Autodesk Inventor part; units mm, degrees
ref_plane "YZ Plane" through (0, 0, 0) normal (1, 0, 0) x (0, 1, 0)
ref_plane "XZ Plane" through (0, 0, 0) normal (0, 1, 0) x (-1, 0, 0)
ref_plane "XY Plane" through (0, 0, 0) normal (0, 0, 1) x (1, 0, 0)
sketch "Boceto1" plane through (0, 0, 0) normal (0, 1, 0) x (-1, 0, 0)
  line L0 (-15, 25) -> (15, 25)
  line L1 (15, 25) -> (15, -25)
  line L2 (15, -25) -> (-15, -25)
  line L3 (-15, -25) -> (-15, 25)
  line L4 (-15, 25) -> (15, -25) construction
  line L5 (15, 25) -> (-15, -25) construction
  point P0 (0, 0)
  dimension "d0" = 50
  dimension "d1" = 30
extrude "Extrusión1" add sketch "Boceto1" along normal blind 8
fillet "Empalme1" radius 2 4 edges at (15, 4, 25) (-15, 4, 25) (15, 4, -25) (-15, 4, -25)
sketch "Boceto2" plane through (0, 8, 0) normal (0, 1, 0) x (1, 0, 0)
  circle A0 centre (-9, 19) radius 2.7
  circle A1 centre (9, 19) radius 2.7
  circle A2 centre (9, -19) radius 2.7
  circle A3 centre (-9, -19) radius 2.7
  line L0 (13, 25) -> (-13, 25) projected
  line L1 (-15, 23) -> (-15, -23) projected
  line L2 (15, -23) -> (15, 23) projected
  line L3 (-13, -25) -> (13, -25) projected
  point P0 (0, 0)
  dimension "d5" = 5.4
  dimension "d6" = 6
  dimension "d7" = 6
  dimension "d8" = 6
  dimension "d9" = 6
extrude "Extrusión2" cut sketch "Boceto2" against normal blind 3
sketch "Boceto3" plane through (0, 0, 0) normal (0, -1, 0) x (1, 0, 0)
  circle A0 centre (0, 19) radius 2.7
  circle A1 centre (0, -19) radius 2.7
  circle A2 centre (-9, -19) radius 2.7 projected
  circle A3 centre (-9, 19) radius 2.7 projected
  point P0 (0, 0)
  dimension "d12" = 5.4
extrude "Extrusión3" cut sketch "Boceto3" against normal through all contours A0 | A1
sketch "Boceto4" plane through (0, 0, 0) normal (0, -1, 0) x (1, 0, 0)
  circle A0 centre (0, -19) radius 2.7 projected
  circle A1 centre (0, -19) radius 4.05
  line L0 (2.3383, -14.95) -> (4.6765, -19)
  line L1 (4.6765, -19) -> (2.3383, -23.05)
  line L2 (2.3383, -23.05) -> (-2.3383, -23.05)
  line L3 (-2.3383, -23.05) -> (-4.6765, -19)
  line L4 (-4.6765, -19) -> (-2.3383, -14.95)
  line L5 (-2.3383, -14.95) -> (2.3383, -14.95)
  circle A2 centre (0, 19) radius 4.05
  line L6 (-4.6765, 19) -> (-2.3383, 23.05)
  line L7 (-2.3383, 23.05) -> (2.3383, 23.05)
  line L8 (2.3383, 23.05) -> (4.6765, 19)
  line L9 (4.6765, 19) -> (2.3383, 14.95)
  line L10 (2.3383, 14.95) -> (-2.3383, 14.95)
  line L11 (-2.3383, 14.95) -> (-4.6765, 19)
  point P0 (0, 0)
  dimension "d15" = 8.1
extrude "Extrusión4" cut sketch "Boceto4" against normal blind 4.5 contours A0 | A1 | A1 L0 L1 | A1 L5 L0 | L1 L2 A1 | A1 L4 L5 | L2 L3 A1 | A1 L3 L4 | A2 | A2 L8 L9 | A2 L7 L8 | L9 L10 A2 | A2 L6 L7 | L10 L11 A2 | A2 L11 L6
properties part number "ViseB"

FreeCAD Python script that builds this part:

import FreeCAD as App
import Part
import Sketcher
Q = App.Units.Quantity


def edges_at(feature, points):
    """Names of the edges that pass closest to the given points."""
    edges = feature.Shape.Edges
    near = lambda p: min(range(len(edges)), key=lambda i: edges[i].distToShape(Part.Vertex(*p))[0])
    return sorted({f"Edge{near(p) + 1}" for p in points})

doc = App.newDocument("Part")
body = doc.addObject("PartDesign::Body", "Body")

sketch1 = body.newObject("Sketcher::SketchObject", "Sketch")
sketch1.AttachmentSupport = (doc.getObject("XZ_Plane"), [""])
sketch1.MapMode = "FlatFace"
sketch1.addGeometry(Part.LineSegment(App.Vector(-15, 25, 0), App.Vector(15, 25, 0)), False)
sketch1.addGeometry(Part.LineSegment(App.Vector(15, 25, 0), App.Vector(15, -25, 0)), False)
sketch1.addGeometry(Part.LineSegment(App.Vector(15, -25, 0), App.Vector(-15, -25, 0)), False)
sketch1.addGeometry(Part.LineSegment(App.Vector(-15, -25, 0), App.Vector(-15, 25, 0)), False)
sketch1.addConstraint(Sketcher.Constraint("Coincident", 0, 2, 1, 1))
sketch1.addConstraint(Sketcher.Constraint("Coincident", 1, 2, 2, 1))
sketch1.addConstraint(Sketcher.Constraint("Coincident", 2, 2, 3, 1))
sketch1.addConstraint(Sketcher.Constraint("Coincident", 3, 2, 0, 1))
sketch1.addConstraint(Sketcher.Constraint("Horizontal", 0))
sketch1.addConstraint(Sketcher.Constraint("Vertical", 1))
sketch1.addConstraint(Sketcher.Constraint("Horizontal", 2))
sketch1.addConstraint(Sketcher.Constraint("Vertical", 3))
sketch1.addConstraint(Sketcher.Constraint("Symmetric", 0, 2, 2, 2, -1, 1))
sketch1.addConstraint(Sketcher.Constraint("DistanceX", 0, 1, 0, 2, 30.0))
sketch1.addConstraint(Sketcher.Constraint("DistanceY", 1, 2, 1, 1, 50.0))
pad1 = body.newObject("PartDesign::Pad", "Pad")
pad1.Profile = sketch1
pad1.Length = 8
pad1.Reversed = True
doc.recompute()

fillet = body.newObject("PartDesign::Fillet", "Fillet")
fillet.Base = (pad1, edges_at(pad1, [
    (15, 4, 25),
    (-15, 4, 25),
    (15, 4, -25),
    (-15, 4, -25),
]))
fillet.Radius = 2

sketch2 = body.newObject("Sketcher::SketchObject", "Sketch001")
sketch2.AttachmentSupport = (doc.getObject("XZ_Plane"), [""])
sketch2.MapMode = "FlatFace"
sketch2.AttachmentOffset = App.Placement(App.Vector(0, 0, -8), App.Rotation())
sketch2.addGeometry(Part.Circle(App.Vector(-9, -19, 0), App.Vector(0, 0, 1), 2.7), False)
sketch2.addGeometry(Part.Circle(App.Vector(9, -19, 0), App.Vector(0, 0, 1), 2.7), False)
sketch2.addGeometry(Part.Circle(App.Vector(9, 19, 0), App.Vector(0, 0, 1), 2.7), False)
sketch2.addGeometry(Part.Circle(App.Vector(-9, 19, 0), App.Vector(0, 0, 1), 2.7), False)
sketch2.addConstraint(Sketcher.Constraint("Equal", 0, 1))
sketch2.addConstraint(Sketcher.Constraint("Equal", 1, 2))
sketch2.addConstraint(Sketcher.Constraint("Equal", 2, 3))
sketch2.addConstraint(Sketcher.Constraint("Symmetric", 0, 3, 2, 3, -1, 1))
sketch2.addConstraint(Sketcher.Constraint("Symmetric", 1, 3, 3, 3, -1, 1))
sketch2.addConstraint(Sketcher.Constraint("Symmetric", 0, 3, 1, 3, -2))
sketch2.addConstraint(Sketcher.Constraint("Diameter", 0, 5.4))
sketch2.addConstraint(Sketcher.Constraint("DistanceX", 0, 3, -1, 1, 9.0))
sketch2.addConstraint(Sketcher.Constraint("DistanceY", 0, 3, -1, 1, 19.0))
pocket1 = body.newObject("PartDesign::Pocket", "Pocket")
pocket1.Profile = sketch2
pocket1.Length = 3
pocket1.Reversed = True

sketch3 = body.newObject("Sketcher::SketchObject", "Sketch002")
sketch3.AttachmentSupport = (doc.getObject("XZ_Plane"), [""])
sketch3.MapMode = "FlatFace"
sketch3.addGeometry(Part.Circle(App.Vector(0, 19, 0), App.Vector(0, 0, 1), 2.7), False)
sketch3.addGeometry(Part.Circle(App.Vector(0, -19, 0), App.Vector(0, 0, 1), 2.7), False)
sketch3.addConstraint(Sketcher.Constraint("Equal", 0, 1))
sketch3.addConstraint(Sketcher.Constraint("Symmetric", 0, 3, 1, 3, -1, 1))
sketch3.addConstraint(Sketcher.Constraint("PointOnObject", 0, 3, -2))
sketch3.addConstraint(Sketcher.Constraint("Diameter", 0, 5.4))
sketch3.addConstraint(Sketcher.Constraint("DistanceY", -1, 1, 0, 3, 19.0))
pocket2 = body.newObject("PartDesign::Pocket", "Pocket001")
pocket2.Profile = sketch3
pocket2.Type = "ThroughAll"

sketch4 = body.newObject("Sketcher::SketchObject", "Sketch003")
sketch4.AttachmentSupport = (doc.getObject("XZ_Plane"), [""])
sketch4.MapMode = "FlatFace"
sketch4.addGeometry(Part.LineSegment(App.Vector(4.7, -19, 0), App.Vector(2.3, -14.9, 0)), False)
sketch4.addGeometry(Part.LineSegment(App.Vector(2.3, -14.9, 0), App.Vector(-2.3, -14.9, 0)), False)
sketch4.addGeometry(Part.LineSegment(App.Vector(-2.3, -14.9, 0), App.Vector(-4.7, -19, 0)), False)
sketch4.addGeometry(Part.LineSegment(App.Vector(-4.7, -19, 0), App.Vector(-2.3, -23.1, 0)), False)
sketch4.addGeometry(Part.LineSegment(App.Vector(-2.3, -23.1, 0), App.Vector(2.3, -23.1, 0)), False)
sketch4.addGeometry(Part.LineSegment(App.Vector(2.3, -23.1, 0), App.Vector(4.7, -19, 0)), False)
sketch4.addGeometry(Part.LineSegment(App.Vector(4.7, 19, 0), App.Vector(2.3, 23.1, 0)), False)
sketch4.addGeometry(Part.LineSegment(App.Vector(2.3, 23.1, 0), App.Vector(-2.3, 23.1, 0)), False)
sketch4.addGeometry(Part.LineSegment(App.Vector(-2.3, 23.1, 0), App.Vector(-4.7, 19, 0)), False)
sketch4.addGeometry(Part.LineSegment(App.Vector(-4.7, 19, 0), App.Vector(-2.3, 14.9, 0)), False)
sketch4.addGeometry(Part.LineSegment(App.Vector(-2.3, 14.9, 0), App.Vector(2.3, 14.9, 0)), False)
sketch4.addGeometry(Part.LineSegment(App.Vector(2.3, 14.9, 0), App.Vector(4.7, 19, 0)), False)
sketch4.addConstraint(Sketcher.Constraint("Coincident", 0, 2, 1, 1))
sketch4.addConstraint(Sketcher.Constraint("Coincident", 1, 2, 2, 1))
sketch4.addConstraint(Sketcher.Constraint("Coincident", 2, 2, 3, 1))
sketch4.addConstraint(Sketcher.Constraint("Coincident", 3, 2, 4, 1))
sketch4.addConstraint(Sketcher.Constraint("Coincident", 4, 2, 5, 1))
sketch4.addConstraint(Sketcher.Constraint("Coincident", 5, 2, 0, 1))
sketch4.addConstraint(Sketcher.Constraint("Coincident", 6, 2, 7, 1))
sketch4.addConstraint(Sketcher.Constraint("Coincident", 7, 2, 8, 1))
sketch4.addConstraint(Sketcher.Constraint("Coincident", 8, 2, 9, 1))
sketch4.addConstraint(Sketcher.Constraint("Coincident", 9, 2, 10, 1))
sketch4.addConstraint(Sketcher.Constraint("Coincident", 10, 2, 11, 1))
sketch4.addConstraint(Sketcher.Constraint("Coincident", 11, 2, 6, 1))
sketch4.addConstraint(Sketcher.Constraint("Horizontal", 1))
sketch4.addConstraint(Sketcher.Constraint("Horizontal", 4))
sketch4.addConstraint(Sketcher.Constraint("Horizontal", 7))
sketch4.addConstraint(Sketcher.Constraint("Horizontal", 10))
sketch4.addConstraint(Sketcher.Constraint("Symmetric", 3, 2, 6, 2, -1, 1))
sketch4.addConstraint(Sketcher.Constraint("Symmetric", 5, 2, 8, 2, -1, 1))
sketch4.addConstraint(Sketcher.Constraint("Symmetric", 0, 2, 9, 2, -1, 1))
sketch4.addConstraint(Sketcher.Constraint("Symmetric", 2, 2, 11, 2, -1, 1))
sketch4.addConstraint(Sketcher.Constraint("Symmetric", 2, 2, 5, 2, -2))
sketch4.addConstraint(Sketcher.Constraint("Parallel", 0, 3))
sketch4.addConstraint(Sketcher.Constraint("Parallel", 2, 5))
sketch4.addConstraint(Sketcher.Constraint("Parallel", 5, 8))
sketch4.addConstraint(Sketcher.Constraint("Parallel", 8, 11))
sketch4.addConstraint(Sketcher.Constraint("Vertical", 1, 2, 3, 2))
sketch4.addConstraint(Sketcher.Constraint("Vertical", 0, 2, 4, 2))
sketch4.addConstraint(Sketcher.Constraint("DistanceY", 3, 2, 1, 2, 8.1))
sketch4.addConstraint(Sketcher.Constraint("Angle", 0, Q("119.9993 deg")))
sketch4.addConstraint(Sketcher.Constraint("DistanceY", 2, 2, -1, 1, 19.0))
sketch4.addConstraint(Sketcher.Constraint("DistanceX", 1, 2, 1, 1, 4.6766))
pocket3 = body.newObject("PartDesign::Pocket", "Pocket002")
pocket3.Profile = sketch4
pocket3.Length = 4.5

doc.recompute()
